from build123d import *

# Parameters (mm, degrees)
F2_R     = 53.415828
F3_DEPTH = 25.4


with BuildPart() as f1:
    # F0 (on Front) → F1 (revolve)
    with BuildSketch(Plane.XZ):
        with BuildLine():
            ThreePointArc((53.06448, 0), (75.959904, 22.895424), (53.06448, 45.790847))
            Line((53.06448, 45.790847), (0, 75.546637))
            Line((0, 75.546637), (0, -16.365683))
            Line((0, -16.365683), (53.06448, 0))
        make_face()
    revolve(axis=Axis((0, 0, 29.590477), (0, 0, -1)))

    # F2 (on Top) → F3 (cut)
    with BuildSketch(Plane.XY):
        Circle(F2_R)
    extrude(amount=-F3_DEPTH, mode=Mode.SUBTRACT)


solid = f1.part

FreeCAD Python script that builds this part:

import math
import FreeCAD as App
import Part
import Sketcher
from FreeCAD import Vector
Q = App.Units.Quantity

doc = App.newDocument("Part")
body = doc.addObject("PartDesign::Body", "Body")

# Sketch on XZ plane
sketch1 = body.newObject("Sketcher::SketchObject", "Sketch")
sketch1.AttachmentSupport = (doc.getObject("XZ_Plane"), [""])
sketch1.MapMode = "FlatFace"
sketch1.addGeometry([
    Part.ArcOfCircle(Part.Circle(Vector(53, 23, 0), Vector(0, 0, 1), 23), math.radians(-90), math.radians(90)),
    Part.LineSegment(Vector(53, 46, 0), Vector(0, 76, 0)),
    Part.LineSegment(Vector(0, 76, 0), Vector(0, -16, 0)),
    Part.LineSegment(Vector(0, -16, 0), Vector(53, 0, 0)),
], False)
sketch1.addConstraint([
    Sketcher.Constraint("Coincident", 0, 2, 1, 1),
    Sketcher.Constraint("Coincident", 1, 2, 2, 1),
    Sketcher.Constraint("Coincident", 2, 2, 3, 1),
    Sketcher.Constraint("Coincident", 3, 2, 0, 1),
    Sketcher.Constraint("Vertical", 2),
    Sketcher.Constraint("PointOnObject", 1, 2, -2),
    Sketcher.Constraint("PointOnObject", 3, 2, -1),
    Sketcher.Constraint("Vertical", 0, 2, 3, 2),
    Sketcher.Constraint("Radius", 0, Q("22.895423 mm")),
    Sketcher.Constraint("DistanceY", 2, 2, 2, 1, Q("91.91232 mm")),
    Sketcher.Constraint("DistanceX", -1, 1, 0, 3, Q("53.064481 mm")),
    Sketcher.Constraint("DistanceX", -1, 1, 0, 2, Q("53.06448 mm")),
    Sketcher.Constraint("DistanceY", 0, 2, 1, 2, Q("29.75579 mm")),
])
revolution = body.newObject("PartDesign::Revolution", "Revolution")
revolution.Profile = sketch1
revolution.ReferenceAxis = (sketch1, ["V_Axis"])
revolution.Angle = 360

# Sketch on XY plane
sketch2 = body.newObject("Sketcher::SketchObject", "Sketch001")
sketch2.AttachmentSupport = (doc.getObject("XY_Plane"), [""])
sketch2.MapMode = "FlatFace"
sketch2.addGeometry(Part.Circle(Vector(0, 0, 0), Vector(0, 0, 1), 53), False)
sketch2.addConstraint([
    Sketcher.Constraint("Coincident", 0, 3, -1, 1),
    Sketcher.Constraint("Diameter", 0, Q("106.831656 mm")),
])
pocket1 = body.newObject("PartDesign::Pocket", "Pocket")
pocket1.Profile = sketch2
pocket1.Length = Q("1 in")

doc.recompute()
